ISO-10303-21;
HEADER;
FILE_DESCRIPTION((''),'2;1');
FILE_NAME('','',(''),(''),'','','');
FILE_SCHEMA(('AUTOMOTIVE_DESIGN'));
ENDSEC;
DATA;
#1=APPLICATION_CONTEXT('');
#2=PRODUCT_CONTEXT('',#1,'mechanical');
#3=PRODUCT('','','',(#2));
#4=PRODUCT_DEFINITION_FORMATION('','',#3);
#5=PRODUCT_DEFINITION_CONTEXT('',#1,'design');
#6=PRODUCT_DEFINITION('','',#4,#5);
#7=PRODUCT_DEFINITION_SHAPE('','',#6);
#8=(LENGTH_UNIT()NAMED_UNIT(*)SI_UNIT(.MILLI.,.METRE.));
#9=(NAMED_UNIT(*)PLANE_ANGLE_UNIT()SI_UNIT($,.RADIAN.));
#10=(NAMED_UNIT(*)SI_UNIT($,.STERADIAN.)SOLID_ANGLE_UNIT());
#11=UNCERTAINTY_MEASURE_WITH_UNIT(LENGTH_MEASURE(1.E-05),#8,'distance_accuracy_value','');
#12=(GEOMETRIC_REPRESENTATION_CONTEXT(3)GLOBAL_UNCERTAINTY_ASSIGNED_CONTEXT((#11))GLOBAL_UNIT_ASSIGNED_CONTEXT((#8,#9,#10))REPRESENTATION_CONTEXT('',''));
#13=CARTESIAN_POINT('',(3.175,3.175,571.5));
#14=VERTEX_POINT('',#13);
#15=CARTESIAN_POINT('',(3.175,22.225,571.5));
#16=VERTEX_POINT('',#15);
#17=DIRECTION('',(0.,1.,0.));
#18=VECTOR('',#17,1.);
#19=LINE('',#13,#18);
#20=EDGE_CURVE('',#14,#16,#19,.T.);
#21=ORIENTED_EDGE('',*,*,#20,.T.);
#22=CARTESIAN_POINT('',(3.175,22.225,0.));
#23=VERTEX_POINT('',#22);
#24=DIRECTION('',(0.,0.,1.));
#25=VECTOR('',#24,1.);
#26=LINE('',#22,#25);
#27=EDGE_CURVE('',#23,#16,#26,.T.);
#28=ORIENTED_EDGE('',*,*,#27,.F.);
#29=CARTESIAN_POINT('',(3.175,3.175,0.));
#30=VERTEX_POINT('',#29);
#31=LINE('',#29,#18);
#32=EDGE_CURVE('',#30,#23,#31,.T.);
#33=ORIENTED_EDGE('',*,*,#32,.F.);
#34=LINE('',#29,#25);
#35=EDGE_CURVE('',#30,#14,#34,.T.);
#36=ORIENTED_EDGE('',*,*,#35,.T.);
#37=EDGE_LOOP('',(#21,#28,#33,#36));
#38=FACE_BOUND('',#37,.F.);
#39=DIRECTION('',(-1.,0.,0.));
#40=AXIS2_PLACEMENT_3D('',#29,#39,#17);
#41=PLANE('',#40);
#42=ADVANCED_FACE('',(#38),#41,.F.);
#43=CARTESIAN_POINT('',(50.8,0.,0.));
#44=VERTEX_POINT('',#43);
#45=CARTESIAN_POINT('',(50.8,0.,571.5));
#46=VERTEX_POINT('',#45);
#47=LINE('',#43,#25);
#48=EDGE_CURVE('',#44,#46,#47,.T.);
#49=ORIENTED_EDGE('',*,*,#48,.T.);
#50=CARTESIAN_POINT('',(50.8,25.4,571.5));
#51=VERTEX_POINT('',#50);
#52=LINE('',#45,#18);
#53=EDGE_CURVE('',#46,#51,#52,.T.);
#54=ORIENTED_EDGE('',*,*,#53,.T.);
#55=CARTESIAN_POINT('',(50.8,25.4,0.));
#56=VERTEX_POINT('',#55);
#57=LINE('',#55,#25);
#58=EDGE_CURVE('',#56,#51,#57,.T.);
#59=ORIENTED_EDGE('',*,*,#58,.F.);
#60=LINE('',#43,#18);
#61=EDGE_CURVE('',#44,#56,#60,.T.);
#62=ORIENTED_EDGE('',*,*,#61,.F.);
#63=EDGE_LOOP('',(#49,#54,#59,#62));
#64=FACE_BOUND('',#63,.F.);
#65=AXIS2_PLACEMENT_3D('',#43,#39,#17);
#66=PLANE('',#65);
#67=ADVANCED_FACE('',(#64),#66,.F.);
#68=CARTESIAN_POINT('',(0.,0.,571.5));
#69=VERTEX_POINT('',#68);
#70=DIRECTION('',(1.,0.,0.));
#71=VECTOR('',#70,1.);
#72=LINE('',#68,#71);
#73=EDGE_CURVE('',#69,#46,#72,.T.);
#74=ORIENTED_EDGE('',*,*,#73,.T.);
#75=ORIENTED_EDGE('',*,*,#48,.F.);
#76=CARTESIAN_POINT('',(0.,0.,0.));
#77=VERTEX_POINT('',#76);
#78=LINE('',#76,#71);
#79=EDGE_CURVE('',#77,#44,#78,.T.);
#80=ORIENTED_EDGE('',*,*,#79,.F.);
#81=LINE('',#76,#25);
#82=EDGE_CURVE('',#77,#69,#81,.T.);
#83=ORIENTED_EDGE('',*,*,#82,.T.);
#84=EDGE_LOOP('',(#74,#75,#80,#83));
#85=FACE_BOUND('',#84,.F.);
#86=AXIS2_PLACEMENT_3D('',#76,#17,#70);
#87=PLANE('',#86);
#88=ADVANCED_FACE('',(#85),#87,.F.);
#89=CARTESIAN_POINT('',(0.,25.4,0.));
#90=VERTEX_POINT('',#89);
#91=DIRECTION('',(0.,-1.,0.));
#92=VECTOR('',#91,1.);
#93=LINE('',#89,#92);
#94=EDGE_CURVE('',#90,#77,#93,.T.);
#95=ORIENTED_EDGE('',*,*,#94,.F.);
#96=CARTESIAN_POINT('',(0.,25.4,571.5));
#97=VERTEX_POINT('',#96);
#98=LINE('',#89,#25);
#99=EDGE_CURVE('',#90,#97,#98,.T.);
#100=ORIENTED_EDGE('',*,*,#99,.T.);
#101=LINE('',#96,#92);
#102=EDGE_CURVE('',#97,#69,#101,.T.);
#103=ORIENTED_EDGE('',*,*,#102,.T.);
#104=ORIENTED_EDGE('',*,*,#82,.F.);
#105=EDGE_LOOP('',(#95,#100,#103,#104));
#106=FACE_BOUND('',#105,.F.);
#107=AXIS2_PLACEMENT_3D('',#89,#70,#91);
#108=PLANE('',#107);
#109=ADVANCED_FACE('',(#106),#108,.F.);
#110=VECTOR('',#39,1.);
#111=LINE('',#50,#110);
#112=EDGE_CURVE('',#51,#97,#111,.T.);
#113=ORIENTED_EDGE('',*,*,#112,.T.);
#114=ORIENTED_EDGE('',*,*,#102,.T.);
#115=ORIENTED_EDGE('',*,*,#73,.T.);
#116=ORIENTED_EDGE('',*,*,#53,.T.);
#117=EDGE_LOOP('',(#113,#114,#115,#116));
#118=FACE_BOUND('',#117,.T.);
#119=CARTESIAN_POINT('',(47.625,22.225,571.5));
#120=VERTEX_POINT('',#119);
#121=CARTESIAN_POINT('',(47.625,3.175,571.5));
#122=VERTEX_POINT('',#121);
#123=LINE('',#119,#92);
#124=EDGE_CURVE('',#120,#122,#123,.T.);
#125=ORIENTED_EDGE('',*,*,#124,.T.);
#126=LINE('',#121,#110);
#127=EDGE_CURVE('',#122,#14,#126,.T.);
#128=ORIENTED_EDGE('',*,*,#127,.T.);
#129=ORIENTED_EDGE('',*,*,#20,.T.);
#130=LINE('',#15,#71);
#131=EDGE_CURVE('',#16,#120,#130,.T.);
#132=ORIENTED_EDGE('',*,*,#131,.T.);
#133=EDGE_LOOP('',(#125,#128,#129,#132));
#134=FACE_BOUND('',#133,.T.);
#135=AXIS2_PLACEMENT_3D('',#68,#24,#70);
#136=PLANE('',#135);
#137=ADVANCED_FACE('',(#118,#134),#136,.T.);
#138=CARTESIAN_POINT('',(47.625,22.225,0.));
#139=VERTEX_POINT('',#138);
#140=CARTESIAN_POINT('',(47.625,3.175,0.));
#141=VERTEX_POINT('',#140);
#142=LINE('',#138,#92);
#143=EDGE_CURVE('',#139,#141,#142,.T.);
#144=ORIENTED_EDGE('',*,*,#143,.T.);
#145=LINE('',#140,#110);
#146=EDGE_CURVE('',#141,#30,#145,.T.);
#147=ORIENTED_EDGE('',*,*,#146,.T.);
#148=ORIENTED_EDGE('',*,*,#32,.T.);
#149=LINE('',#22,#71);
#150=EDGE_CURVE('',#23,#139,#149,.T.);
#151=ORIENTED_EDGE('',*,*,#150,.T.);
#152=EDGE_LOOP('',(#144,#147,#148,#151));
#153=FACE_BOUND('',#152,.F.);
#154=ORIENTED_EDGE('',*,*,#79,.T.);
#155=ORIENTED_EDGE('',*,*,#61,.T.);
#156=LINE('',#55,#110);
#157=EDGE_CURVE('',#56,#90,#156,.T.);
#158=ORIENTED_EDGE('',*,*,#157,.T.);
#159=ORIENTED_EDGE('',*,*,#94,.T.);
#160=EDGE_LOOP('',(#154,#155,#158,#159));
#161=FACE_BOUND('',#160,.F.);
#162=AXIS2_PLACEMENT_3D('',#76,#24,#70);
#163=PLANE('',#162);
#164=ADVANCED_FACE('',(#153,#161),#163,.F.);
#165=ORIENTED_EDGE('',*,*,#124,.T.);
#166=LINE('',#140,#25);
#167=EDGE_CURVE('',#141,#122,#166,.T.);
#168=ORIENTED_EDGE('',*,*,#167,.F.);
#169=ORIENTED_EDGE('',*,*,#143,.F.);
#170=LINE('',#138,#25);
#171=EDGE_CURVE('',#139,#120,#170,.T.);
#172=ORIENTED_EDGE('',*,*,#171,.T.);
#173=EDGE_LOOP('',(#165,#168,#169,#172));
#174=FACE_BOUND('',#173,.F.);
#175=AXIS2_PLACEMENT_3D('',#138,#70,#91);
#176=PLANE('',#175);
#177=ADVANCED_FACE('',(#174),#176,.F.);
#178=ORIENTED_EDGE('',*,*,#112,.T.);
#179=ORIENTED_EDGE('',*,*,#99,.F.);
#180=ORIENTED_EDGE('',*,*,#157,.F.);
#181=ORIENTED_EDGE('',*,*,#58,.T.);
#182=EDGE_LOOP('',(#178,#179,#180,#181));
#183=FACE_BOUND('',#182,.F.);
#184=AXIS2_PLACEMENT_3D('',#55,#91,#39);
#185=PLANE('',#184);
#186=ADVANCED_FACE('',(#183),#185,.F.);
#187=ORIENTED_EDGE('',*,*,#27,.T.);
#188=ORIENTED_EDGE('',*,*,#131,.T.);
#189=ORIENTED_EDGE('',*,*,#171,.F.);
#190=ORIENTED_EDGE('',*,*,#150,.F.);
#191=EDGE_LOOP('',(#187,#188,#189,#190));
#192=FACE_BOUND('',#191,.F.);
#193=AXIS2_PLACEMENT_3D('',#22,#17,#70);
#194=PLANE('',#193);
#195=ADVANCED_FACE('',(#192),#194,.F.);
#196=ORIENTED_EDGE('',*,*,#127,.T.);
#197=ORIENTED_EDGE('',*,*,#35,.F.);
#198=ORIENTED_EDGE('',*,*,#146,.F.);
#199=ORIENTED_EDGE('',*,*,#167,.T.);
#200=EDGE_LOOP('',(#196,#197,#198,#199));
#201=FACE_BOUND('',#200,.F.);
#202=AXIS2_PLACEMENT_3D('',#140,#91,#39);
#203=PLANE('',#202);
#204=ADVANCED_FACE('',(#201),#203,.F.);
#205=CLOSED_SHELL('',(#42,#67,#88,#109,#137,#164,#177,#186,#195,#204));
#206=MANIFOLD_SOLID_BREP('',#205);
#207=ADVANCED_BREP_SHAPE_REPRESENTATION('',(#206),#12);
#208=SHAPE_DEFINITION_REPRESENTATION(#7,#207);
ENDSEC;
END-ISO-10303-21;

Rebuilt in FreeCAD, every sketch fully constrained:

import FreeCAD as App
import Part
import Sketcher

V = App.Vector
Q = App.Units.Quantity

doc = App.newDocument("Part")
params = doc.addObject("Spreadsheet::Sheet", "Params")
for row, (alias, value) in enumerate([
    ("sketch1_width", "2 in"),
    ("sketch1_height", "1 in"),
    ("pad1_length", "22.5 in"),
], start=1):
    params.set(f"A{row}", alias)
    params.set(f"B{row}", "=" + value)
    params.setAlias(f"B{row}", alias)

body = doc.addObject("PartDesign::Body", "Body")

# Sketch on XY plane
sketch1 = body.newObject("Sketcher::SketchObject", "Sketch")
sketch1.AttachmentSupport = (doc.getObject("XY_Plane"), [""])
sketch1.MapMode = "FlatFace"
sketch1.addGeometry([
    Part.LineSegment(V(0, 25, 0), V(0, 0, 0)),  # 0
    Part.LineSegment(V(0, 0, 0), V(51, 0, 0)),  # 1
    Part.LineSegment(V(51, 0, 0), V(51, 25, 0)),  # 2
    Part.LineSegment(V(51, 25, 0), V(0, 25, 0)),  # 3
    Part.LineSegment(V(3, 3, 0), V(3, 22, 0)),  # 4
    Part.LineSegment(V(3, 22, 0), V(48, 22, 0)),  # 5
    Part.LineSegment(V(48, 22, 0), V(48, 3, 0)),  # 6
    Part.LineSegment(V(48, 3, 0), V(3, 3, 0)),  # 7
], False)
sketch1.addConstraint([
    Sketcher.Constraint("Coincident", 0, 2, 1, 1),
    Sketcher.Constraint("Coincident", 1, 2, 2, 1),
    Sketcher.Constraint("Coincident", 2, 2, 3, 1),
    Sketcher.Constraint("Coincident", 3, 2, 0, 1),
    Sketcher.Constraint("Coincident", 4, 2, 5, 1),
    Sketcher.Constraint("Coincident", 5, 2, 6, 1),
    Sketcher.Constraint("Coincident", 6, 2, 7, 1),
    Sketcher.Constraint("Coincident", 7, 2, 4, 1),
    Sketcher.Constraint("Vertical", 0),
    Sketcher.Constraint("Horizontal", 1),
    Sketcher.Constraint("Vertical", 2),
    Sketcher.Constraint("Horizontal", 3),
    Sketcher.Constraint("Vertical", 4),
    Sketcher.Constraint("Horizontal", 5),
    Sketcher.Constraint("Vertical", 6),
    Sketcher.Constraint("Horizontal", 7),
    Sketcher.Constraint("Coincident", 0, 2, -1, 1),
    Sketcher.Constraint("DistanceX", 1, 1, 1, 2, Q("2 in")),
    Sketcher.Constraint("DistanceY", 0, 2, 0, 1, Q("1 in")),
    Sketcher.Constraint("DistanceX", -1, 1, 4, 2, Q("0.125 in")),
    Sketcher.Constraint("DistanceY", -1, 1, 6, 2, Q("0.125 in")),
    Sketcher.Constraint("DistanceY", 4, 2, 3, 2, Q("0.125 in")),
    Sketcher.Constraint("DistanceX", 5, 2, 2, 2, Q("0.125 in")),
])
sketch1.setExpression("Constraints[17]", "Params.sketch1_width")
sketch1.setExpression("Constraints[18]", "Params.sketch1_height")
pad1 = body.newObject("PartDesign::Pad", "Pad")
pad1.Profile = sketch1
pad1.setExpression("Length", "Params.pad1_length")

doc.recompute()
